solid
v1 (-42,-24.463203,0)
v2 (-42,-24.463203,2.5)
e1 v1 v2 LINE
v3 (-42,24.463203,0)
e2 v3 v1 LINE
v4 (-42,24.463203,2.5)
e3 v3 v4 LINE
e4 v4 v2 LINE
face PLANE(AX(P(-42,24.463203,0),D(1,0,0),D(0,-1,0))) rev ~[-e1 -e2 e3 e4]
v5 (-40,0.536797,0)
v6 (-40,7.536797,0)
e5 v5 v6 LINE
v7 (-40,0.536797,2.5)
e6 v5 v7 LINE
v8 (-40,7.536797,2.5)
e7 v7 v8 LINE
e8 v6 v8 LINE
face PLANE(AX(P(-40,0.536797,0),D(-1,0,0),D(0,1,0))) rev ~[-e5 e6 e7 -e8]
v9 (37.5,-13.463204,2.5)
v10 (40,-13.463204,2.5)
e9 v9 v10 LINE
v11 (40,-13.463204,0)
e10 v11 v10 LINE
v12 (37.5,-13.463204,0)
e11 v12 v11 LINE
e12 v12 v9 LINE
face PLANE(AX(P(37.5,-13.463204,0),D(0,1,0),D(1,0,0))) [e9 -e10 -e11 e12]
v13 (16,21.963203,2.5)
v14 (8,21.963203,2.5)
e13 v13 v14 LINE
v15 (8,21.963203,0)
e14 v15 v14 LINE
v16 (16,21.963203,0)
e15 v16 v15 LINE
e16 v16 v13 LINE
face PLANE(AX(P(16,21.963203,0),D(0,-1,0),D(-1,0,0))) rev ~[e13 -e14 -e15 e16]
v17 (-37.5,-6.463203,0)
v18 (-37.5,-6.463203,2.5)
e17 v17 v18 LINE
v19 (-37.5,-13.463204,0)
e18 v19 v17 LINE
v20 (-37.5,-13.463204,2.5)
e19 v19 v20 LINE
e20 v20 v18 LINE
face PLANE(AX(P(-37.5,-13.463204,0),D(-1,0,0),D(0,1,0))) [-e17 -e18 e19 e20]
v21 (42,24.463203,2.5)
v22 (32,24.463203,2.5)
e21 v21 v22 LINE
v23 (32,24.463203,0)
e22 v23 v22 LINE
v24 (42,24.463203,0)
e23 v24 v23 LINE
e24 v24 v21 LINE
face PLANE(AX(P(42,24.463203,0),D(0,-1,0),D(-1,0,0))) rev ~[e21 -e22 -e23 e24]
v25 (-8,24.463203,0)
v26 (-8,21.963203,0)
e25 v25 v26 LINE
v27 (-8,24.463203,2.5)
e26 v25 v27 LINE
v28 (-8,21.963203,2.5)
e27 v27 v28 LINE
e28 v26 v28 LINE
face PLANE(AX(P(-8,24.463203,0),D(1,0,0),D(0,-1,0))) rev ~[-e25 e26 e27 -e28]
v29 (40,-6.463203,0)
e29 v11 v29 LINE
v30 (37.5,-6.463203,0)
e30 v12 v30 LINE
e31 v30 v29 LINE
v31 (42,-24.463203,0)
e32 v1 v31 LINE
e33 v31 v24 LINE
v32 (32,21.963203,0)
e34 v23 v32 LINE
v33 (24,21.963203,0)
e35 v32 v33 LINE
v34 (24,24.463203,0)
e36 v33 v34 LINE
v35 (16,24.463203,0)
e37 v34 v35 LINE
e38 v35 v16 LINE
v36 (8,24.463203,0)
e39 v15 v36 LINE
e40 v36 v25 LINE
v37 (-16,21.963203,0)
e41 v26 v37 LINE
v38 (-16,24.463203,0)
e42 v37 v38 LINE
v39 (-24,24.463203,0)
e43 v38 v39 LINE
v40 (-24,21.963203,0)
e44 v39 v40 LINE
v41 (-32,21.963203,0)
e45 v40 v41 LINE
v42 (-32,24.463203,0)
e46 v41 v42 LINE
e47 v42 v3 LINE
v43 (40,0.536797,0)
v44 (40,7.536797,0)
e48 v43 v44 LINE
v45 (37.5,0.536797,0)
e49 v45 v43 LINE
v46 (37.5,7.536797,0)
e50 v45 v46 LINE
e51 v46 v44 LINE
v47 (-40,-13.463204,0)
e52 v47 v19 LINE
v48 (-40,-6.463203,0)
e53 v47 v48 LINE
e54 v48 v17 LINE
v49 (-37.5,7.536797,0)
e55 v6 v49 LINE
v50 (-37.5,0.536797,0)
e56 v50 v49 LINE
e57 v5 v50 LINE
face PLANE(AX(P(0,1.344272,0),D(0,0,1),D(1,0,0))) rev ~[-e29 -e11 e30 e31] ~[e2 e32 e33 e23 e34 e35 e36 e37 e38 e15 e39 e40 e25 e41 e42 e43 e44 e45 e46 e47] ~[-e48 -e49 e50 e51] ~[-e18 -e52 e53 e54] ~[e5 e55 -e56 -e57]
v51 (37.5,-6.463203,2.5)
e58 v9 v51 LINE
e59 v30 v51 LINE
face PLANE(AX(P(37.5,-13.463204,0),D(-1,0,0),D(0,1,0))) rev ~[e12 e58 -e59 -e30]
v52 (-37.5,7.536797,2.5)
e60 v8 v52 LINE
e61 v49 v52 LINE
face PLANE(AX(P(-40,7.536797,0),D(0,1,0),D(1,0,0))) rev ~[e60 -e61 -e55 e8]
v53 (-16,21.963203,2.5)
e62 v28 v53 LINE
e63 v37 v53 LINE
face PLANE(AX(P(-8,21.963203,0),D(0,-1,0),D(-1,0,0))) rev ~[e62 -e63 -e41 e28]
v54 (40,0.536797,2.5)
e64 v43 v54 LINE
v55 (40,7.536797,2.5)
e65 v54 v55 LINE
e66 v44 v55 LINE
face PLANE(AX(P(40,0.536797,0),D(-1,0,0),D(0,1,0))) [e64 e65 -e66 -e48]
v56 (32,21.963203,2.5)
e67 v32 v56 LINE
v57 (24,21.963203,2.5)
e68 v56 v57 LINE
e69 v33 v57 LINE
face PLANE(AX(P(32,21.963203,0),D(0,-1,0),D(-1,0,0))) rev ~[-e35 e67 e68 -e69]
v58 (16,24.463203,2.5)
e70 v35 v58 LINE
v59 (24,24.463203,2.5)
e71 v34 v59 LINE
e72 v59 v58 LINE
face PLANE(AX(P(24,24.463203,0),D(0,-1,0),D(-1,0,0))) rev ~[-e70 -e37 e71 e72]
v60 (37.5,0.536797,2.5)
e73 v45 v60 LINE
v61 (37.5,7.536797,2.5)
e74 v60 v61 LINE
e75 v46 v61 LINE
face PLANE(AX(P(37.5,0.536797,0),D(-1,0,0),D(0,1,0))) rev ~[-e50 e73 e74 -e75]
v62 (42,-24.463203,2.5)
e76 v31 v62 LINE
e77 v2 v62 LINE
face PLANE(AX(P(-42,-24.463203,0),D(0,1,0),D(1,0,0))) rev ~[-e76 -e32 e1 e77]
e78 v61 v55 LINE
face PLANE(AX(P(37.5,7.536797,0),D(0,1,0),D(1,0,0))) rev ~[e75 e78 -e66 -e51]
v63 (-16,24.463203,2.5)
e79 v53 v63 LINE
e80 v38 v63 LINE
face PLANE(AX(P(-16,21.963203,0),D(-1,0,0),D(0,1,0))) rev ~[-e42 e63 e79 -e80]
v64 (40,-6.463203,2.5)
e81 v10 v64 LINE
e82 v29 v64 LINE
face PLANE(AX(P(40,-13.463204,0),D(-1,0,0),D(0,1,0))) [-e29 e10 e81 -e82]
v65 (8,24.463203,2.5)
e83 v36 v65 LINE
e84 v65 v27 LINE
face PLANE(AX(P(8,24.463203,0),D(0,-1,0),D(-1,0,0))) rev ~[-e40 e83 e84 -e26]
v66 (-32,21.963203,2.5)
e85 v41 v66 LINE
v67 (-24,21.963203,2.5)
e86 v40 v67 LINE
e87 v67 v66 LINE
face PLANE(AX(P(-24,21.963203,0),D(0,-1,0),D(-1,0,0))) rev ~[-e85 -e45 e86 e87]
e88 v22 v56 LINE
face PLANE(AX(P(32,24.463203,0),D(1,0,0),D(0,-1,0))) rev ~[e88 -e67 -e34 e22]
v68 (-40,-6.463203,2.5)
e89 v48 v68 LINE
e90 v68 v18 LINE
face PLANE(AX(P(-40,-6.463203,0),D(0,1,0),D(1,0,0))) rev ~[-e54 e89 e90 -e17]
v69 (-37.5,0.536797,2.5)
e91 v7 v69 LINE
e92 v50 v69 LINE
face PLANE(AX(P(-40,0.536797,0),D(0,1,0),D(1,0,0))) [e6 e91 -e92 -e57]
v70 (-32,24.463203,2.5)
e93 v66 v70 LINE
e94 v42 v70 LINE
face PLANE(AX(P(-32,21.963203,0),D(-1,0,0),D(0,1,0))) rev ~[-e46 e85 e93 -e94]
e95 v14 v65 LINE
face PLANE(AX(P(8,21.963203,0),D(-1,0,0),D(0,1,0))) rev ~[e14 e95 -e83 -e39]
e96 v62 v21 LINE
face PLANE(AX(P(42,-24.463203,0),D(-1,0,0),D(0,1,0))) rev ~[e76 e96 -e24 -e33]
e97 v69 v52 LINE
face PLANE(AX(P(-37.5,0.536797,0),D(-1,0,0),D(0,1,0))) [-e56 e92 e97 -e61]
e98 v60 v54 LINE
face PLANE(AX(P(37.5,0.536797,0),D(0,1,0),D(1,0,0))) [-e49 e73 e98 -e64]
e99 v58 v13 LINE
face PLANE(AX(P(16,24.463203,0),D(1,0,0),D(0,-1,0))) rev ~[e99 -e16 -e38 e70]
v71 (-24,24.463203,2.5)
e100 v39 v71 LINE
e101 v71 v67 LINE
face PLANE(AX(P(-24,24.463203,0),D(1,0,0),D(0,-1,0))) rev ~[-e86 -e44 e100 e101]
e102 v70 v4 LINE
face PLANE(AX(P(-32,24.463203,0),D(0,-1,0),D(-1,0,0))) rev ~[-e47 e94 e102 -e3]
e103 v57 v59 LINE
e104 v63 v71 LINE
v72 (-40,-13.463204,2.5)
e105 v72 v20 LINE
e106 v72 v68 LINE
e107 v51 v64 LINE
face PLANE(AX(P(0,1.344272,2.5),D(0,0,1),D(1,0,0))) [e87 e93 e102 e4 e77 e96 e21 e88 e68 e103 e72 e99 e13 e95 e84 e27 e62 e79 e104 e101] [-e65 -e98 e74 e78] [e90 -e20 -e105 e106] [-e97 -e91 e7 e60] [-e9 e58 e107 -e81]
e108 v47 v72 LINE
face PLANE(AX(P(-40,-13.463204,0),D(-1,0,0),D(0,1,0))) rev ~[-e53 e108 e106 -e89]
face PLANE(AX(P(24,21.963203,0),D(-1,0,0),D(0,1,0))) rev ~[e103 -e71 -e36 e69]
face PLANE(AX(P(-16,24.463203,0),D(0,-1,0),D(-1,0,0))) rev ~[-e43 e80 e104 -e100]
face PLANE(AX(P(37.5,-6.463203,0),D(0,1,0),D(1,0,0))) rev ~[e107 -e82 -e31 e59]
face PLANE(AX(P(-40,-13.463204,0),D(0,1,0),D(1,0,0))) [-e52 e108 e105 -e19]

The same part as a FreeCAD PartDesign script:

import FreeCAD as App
import Part
import Sketcher

V = App.Vector
Q = App.Units.Quantity


def add_polygon(sketch, points):
    """Adds a closed chain of lines whose ends are joined by coincident constraints."""
    first, n = sketch.GeometryCount, len(points)
    for a, b in zip(points, points[1:] + points[:1]):
        sketch.addGeometry(Part.LineSegment(App.Vector(*a, 0), App.Vector(*b, 0)), False)
    for i in range(n):
        sketch.addConstraint(Sketcher.Constraint("Coincident", first + i, 2, first + (i + 1) % n, 1))

doc = App.newDocument("Part")
params = doc.addObject("Spreadsheet::Sheet", "Params")
for row, (alias, value) in enumerate([
    ("sketch1_width", "8 mm"),
    ("sketch1_width2", "10 mm"),
    ("sketch1_width3", "84 mm"),
    ("sketch1_height", "7 mm"),
    ("sketch1_width4", "2.5 mm"),
    ("pad1_length", "2.5 mm"),
], start=1):
    params.set(f"A{row}", alias)
    params.set(f"B{row}", "=" + value)
    params.setAlias(f"B{row}", alias)

body = doc.addObject("PartDesign::Body", "Body")

# Sketch on XY plane
sketch1 = body.newObject("Sketcher::SketchObject", "Sketch")
sketch1.AttachmentSupport = (doc.getObject("XY_Plane"), [""])
sketch1.MapMode = "FlatFace"
add_polygon(sketch1, [(-24, 24.5), (-24, 22), (-32, 22), (-32, 24.5), (-42, 24.5), (-42, -24.5), (42, -24.5), (42, 24.5), (32, 24.5), (32, 22), (24, 22), (24, 24.5), (16, 24.5), (16, 22), (8, 22), (8, 24.5), (-8, 24.5), (-8, 22), (-16, 22), (-16, 24.5)])  # lines 0-19
add_polygon(sketch1, [(-37.5, -13.5), (-40, -13.5), (-40, -6.5), (-37.5, -6.5)])  # lines 20-23
add_polygon(sketch1, [(40, -13.5), (37.5, -13.5), (37.5, -6.5), (40, -6.5)])  # lines 24-27
add_polygon(sketch1, [(-37.5, 0.5), (-40, 0.5), (-40, 7.5), (-37.5, 7.5)])  # lines 28-31
add_polygon(sketch1, [(40, 0.5), (37.5, 0.5), (37.5, 7.5), (40, 7.5)])  # lines 32-35
sketch1.addConstraint([
    Sketcher.Constraint("Vertical", 0),
    Sketcher.Constraint("Horizontal", 1),
    Sketcher.Constraint("Vertical", 2),
    Sketcher.Constraint("Horizontal", 3),
    Sketcher.Constraint("Vertical", 4),
    Sketcher.Constraint("Horizontal", 5),
    Sketcher.Constraint("Vertical", 6),
    Sketcher.Constraint("Horizontal", 7),
    Sketcher.Constraint("Vertical", 8),
    Sketcher.Constraint("Horizontal", 9),
    Sketcher.Constraint("Vertical", 10),
    Sketcher.Constraint("Horizontal", 11),
    Sketcher.Constraint("Vertical", 12),
    Sketcher.Constraint("Horizontal", 13),
    Sketcher.Constraint("Vertical", 14),
    Sketcher.Constraint("Horizontal", 15),
    Sketcher.Constraint("Vertical", 16),
    Sketcher.Constraint("Horizontal", 17),
    Sketcher.Constraint("Vertical", 18),
    Sketcher.Constraint("Horizontal", 19),
    Sketcher.Constraint("Horizontal", 20),
    Sketcher.Constraint("Vertical", 21),
    Sketcher.Constraint("Horizontal", 22),
    Sketcher.Constraint("Vertical", 23),
    Sketcher.Constraint("Horizontal", 24),
    Sketcher.Constraint("Vertical", 25),
    Sketcher.Constraint("Horizontal", 26),
    Sketcher.Constraint("Vertical", 27),
    Sketcher.Constraint("Horizontal", 28),
    Sketcher.Constraint("Vertical", 29),
    Sketcher.Constraint("Horizontal", 30),
    Sketcher.Constraint("Vertical", 31),
    Sketcher.Constraint("Horizontal", 32),
    Sketcher.Constraint("Vertical", 33),
    Sketcher.Constraint("Horizontal", 34),
    Sketcher.Constraint("Vertical", 35),
    Sketcher.Constraint("Symmetric", 3, 2, 5, 2, -1, 1),
    Sketcher.Constraint("Symmetric", 2, 2, 7, 2, -2),
    Sketcher.Constraint("Symmetric", 0, 2, 9, 2, -2),
    Sketcher.Constraint("Symmetric", 13, 2, 16, 2, -2),
    Sketcher.Constraint("Symmetric", 11, 2, 18, 2, -2),
    Sketcher.Constraint("Symmetric", 23, 2, 24, 2, -2),
    Sketcher.Constraint("Symmetric", 21, 2, 26, 2, -2),
    Sketcher.Constraint("Symmetric", 31, 2, 32, 2, -2),
    Sketcher.Constraint("Symmetric", 29, 2, 34, 2, -2),
    Sketcher.Constraint("Horizontal", 7, 2, 10, 2),
    Sketcher.Constraint("Horizontal", 9, 2, 12, 2),
    Sketcher.Constraint("Horizontal", 11, 2, 14, 2),
    Sketcher.Constraint("Vertical", 21, 2, 28, 2),
    Sketcher.Constraint("Vertical", 23, 2, 30, 2),
    Sketcher.Constraint("Equal", 9, 11),
    Sketcher.Constraint("Equal", 11, 13),
    Sketcher.Constraint("Equal", 34, 0),
    Sketcher.Constraint("Equal", 27, 29),
    Sketcher.Constraint("DistanceX", 1, 2, 1, 1, Q("8 mm")),
    Sketcher.Constraint("DistanceX", 3, 2, 3, 1, Q("10 mm")),
    Sketcher.Constraint("DistanceX", 5, 1, 5, 2, Q("84 mm")),
    Sketcher.Constraint("DistanceY", 21, 1, 21, 2, Q("7 mm")),
    Sketcher.Constraint("DistanceX", 20, 2, 20, 1, Q("2.5 mm")),
    Sketcher.Constraint("DistanceX", 20, 2, -1, 1, Q("40 mm")),
    Sketcher.Constraint("DistanceY", 4, 2, 20, 2, Q("11 mm")),
    Sketcher.Constraint("DistanceY", 21, 2, 28, 2, Q("7 mm")),
    Sketcher.Constraint("DistanceY", 4, 2, 4, 1, Q("48.926407 mm")),
])
sketch1.setExpression("Constraints[90]", "Params.sketch1_width")
sketch1.setExpression("Constraints[91]", "Params.sketch1_width2")
sketch1.setExpression("Constraints[92]", "Params.sketch1_width3")
sketch1.setExpression("Constraints[93]", "Params.sketch1_height")
sketch1.setExpression("Constraints[94]", "Params.sketch1_width4")
pad1 = body.newObject("PartDesign::Pad", "Pad")
pad1.Profile = sketch1
pad1.setExpression("Length", "Params.pad1_length")

doc.recompute()
